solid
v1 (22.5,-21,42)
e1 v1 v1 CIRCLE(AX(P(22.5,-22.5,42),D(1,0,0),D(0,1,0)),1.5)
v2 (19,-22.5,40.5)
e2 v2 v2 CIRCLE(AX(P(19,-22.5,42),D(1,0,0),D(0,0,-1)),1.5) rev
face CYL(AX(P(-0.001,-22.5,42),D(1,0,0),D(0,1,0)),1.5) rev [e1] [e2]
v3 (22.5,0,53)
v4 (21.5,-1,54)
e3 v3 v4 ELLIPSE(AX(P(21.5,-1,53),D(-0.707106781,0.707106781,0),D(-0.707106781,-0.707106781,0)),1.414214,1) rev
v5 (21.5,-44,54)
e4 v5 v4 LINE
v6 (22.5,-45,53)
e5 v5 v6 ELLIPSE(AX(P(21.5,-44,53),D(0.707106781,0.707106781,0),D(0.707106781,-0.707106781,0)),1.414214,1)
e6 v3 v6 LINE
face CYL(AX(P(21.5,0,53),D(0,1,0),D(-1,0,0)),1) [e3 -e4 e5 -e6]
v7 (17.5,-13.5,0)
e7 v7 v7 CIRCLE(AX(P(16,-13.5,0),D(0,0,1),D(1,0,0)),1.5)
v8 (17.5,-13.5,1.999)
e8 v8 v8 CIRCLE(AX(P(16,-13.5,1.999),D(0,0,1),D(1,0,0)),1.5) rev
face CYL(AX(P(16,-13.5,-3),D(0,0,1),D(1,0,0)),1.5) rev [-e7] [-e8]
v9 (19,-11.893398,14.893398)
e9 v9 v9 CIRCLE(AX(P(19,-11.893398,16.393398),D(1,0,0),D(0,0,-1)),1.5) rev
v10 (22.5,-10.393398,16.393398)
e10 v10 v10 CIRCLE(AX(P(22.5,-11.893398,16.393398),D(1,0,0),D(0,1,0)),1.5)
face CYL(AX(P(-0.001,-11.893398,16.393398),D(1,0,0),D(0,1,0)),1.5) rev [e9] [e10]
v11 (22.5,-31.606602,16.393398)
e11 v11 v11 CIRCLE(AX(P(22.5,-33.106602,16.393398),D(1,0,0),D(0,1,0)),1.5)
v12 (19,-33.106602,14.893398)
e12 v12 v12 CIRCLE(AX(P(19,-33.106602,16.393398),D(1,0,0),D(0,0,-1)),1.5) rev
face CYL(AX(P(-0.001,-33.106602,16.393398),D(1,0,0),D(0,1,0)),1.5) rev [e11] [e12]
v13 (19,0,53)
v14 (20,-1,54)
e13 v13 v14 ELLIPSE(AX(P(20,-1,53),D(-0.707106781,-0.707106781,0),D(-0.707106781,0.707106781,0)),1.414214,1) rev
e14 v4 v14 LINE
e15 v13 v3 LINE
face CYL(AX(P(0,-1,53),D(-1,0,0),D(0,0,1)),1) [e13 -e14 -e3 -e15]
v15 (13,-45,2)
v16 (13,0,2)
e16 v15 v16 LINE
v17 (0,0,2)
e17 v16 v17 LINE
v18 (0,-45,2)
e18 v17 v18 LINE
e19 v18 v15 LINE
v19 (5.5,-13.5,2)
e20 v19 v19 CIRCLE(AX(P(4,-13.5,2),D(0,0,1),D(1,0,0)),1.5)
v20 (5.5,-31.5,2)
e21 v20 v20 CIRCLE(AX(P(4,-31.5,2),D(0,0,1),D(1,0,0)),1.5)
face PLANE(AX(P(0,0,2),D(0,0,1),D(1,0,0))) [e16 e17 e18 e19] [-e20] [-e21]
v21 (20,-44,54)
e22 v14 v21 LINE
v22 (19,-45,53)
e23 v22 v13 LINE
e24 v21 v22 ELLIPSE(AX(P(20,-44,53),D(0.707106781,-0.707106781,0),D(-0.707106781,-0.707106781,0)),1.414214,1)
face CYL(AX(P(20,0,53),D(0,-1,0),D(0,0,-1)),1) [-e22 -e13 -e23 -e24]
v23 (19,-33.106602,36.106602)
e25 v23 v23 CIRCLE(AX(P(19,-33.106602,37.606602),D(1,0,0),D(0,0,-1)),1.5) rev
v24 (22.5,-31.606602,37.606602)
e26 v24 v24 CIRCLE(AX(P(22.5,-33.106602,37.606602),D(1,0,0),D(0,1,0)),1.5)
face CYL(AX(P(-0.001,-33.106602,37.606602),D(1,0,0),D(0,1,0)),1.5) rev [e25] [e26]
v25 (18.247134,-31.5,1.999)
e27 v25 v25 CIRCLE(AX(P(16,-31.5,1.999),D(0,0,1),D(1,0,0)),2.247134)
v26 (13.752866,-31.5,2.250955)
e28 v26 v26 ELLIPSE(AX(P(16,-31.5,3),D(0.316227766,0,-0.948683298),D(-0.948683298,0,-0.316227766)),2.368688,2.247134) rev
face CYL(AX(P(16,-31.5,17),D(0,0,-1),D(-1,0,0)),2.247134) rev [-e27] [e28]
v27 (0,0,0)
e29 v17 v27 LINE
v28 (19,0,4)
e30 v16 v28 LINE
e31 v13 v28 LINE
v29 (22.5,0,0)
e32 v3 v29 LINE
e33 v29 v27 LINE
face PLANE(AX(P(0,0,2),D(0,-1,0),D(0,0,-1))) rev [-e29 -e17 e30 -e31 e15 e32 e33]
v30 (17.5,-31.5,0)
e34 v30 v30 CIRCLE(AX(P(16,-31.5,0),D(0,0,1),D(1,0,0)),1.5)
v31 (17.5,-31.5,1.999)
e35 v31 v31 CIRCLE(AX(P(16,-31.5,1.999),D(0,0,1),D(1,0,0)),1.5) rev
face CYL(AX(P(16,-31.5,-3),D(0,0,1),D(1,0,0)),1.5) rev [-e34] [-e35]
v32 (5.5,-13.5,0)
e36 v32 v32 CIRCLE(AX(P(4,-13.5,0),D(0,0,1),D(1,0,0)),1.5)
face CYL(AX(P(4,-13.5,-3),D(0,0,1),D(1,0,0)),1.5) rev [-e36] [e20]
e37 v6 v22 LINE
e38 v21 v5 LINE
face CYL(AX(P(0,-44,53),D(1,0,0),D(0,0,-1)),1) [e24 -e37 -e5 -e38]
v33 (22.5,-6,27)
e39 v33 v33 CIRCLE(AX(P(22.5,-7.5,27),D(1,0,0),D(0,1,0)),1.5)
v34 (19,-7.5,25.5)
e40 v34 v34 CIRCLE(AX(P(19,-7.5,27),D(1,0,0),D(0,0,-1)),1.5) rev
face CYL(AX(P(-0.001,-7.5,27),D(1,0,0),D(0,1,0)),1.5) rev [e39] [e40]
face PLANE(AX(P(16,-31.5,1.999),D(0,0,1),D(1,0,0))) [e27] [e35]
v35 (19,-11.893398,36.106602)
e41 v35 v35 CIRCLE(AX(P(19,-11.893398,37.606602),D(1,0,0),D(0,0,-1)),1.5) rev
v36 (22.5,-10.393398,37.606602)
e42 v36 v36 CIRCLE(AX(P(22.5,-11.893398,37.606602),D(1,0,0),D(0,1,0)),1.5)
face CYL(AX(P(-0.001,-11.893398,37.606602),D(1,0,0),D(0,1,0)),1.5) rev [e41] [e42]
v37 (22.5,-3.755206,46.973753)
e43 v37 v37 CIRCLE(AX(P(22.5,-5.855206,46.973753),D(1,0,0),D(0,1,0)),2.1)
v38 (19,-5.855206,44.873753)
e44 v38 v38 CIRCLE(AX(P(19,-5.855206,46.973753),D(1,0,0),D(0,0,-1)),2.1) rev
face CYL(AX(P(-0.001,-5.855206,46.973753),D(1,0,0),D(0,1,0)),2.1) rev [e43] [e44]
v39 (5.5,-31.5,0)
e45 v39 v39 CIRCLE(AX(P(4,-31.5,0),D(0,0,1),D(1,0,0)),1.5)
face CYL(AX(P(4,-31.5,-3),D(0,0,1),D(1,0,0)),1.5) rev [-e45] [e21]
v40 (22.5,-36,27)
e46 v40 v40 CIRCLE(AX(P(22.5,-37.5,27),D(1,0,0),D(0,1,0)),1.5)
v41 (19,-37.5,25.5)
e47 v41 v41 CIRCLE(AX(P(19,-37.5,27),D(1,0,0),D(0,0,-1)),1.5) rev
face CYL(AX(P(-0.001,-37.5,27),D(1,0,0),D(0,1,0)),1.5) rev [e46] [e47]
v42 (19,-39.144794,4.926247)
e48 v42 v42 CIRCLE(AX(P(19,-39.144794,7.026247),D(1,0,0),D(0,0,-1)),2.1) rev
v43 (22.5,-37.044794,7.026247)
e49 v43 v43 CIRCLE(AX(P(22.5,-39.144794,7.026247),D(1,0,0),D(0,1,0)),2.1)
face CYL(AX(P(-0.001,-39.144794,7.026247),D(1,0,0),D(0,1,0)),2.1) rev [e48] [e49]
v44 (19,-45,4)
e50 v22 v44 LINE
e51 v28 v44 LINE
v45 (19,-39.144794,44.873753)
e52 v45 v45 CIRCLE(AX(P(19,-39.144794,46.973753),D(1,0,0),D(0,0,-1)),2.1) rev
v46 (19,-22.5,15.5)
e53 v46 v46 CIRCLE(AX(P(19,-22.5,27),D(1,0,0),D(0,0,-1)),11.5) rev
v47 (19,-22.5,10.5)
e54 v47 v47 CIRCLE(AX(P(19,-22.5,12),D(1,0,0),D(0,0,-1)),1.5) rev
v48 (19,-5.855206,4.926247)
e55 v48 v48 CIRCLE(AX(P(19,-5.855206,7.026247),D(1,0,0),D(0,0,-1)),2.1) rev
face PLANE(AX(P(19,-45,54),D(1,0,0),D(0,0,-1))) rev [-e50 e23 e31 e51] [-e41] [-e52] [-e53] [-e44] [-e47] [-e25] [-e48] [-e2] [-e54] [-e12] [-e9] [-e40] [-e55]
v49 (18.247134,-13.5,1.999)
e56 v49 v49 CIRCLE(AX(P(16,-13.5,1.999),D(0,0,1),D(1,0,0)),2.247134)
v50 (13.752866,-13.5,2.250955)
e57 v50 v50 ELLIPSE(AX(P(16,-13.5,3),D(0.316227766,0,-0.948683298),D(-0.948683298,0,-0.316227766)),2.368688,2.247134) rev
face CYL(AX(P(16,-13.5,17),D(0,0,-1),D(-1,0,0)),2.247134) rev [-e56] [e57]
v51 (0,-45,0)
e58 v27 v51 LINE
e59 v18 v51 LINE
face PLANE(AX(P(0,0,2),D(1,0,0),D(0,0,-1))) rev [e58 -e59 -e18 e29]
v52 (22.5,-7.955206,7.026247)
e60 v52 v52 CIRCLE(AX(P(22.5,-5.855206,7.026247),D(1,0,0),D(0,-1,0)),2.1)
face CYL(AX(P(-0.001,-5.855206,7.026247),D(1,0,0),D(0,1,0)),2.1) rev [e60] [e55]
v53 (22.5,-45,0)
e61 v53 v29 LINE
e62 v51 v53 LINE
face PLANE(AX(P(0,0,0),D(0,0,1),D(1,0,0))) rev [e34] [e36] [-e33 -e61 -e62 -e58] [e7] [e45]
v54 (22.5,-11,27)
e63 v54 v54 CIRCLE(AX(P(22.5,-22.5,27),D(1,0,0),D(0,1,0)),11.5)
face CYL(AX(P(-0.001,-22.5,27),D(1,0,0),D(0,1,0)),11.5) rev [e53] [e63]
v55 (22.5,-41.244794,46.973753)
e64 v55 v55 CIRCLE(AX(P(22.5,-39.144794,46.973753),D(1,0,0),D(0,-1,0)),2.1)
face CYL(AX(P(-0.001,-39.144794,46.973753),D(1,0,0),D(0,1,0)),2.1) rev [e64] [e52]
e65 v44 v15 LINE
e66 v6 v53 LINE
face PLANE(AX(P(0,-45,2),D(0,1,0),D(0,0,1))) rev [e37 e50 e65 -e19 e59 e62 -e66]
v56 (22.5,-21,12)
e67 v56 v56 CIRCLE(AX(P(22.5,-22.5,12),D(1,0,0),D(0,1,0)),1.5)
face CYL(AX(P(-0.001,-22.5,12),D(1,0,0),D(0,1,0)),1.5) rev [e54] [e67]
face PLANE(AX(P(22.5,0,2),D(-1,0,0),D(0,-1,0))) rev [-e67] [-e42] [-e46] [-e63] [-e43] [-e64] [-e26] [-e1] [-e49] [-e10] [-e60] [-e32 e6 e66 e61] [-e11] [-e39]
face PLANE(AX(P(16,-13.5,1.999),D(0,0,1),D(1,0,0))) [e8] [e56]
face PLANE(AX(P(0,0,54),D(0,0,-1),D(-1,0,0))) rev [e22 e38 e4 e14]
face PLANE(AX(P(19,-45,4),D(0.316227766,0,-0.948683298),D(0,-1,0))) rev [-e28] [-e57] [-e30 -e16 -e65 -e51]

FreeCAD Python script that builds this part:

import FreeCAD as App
import Part
import Sketcher

V = App.Vector


def edges_at(feature, points):
    """Names of the edges that pass closest to the given points."""
    edges = feature.Shape.Edges
    near = lambda p: min(range(len(edges)), key=lambda i: edges[i].distToShape(Part.Vertex(*p))[0])
    return sorted({f"Edge{near(p) + 1}" for p in points})


def add_polygon(sketch, points):
    """Adds a closed chain of lines whose ends are joined by coincident constraints."""
    first, n = sketch.GeometryCount, len(points)
    for a, b in zip(points, points[1:] + points[:1]):
        sketch.addGeometry(Part.LineSegment(App.Vector(*a, 0), App.Vector(*b, 0)), False)
    for i in range(n):
        sketch.addConstraint(Sketcher.Constraint("Coincident", first + i, 2, first + (i + 1) % n, 1))

doc = App.newDocument("Part")
params = doc.addObject("Spreadsheet::Sheet", "Params")
for row, (alias, value) in enumerate([
    ("sketch1_height", "45 mm"),
    ("sketch1_width", "22.5 mm"),
    ("pad1_length", "2 mm"),
    ("sketch2_height", "45 mm"),
    ("sketch2_width", "3.5 mm"),
    ("pad2_length", "52 mm"),
    ("sketch3_diameter", "4.2 mm"),
    ("sketch4_diameter", "4.2 mm"),
    ("sketch5_diameter", "23 mm"),
    ("sketch6_diameter", "4.2 mm"),
    ("sketch7_diameter", "4.2 mm"),
    ("sketch8_diameter", "3 mm"),
    ("sketch9_diameter", "3 mm"),
    ("sketch10_diameter", "3 mm"),
    ("sketch11_diameter", "3 mm"),
    ("sketch12_diameter", "3 mm"),
    ("sketch13_diameter", "3 mm"),
    ("sketch14_diameter", "3 mm"),
    ("sketch15_diameter", "3 mm"),
    ("chamfer_size", "6 mm"),
    ("chamfer_size2", "2 mm"),
    ("fillet_radius", "1 mm"),
    ("sketch16_diameter", "3 mm"),
    ("pocket14_length", "10 mm"),
    ("pocket15_length", "15 mm"),
    ("pocket15_length2", "0.001 mm"),
], start=1):
    params.set(f"A{row}", alias)
    params.set(f"B{row}", "=" + value)
    params.setAlias(f"B{row}", alias)

body = doc.addObject("PartDesign::Body", "Body")

sketch1 = body.newObject("Sketcher::SketchObject", "Sketch")
sketch1.AttachmentSupport = (doc.getObject("XY_Plane"), [""])
sketch1.MapMode = "FlatFace"
add_polygon(sketch1, [(0, 0), (0, -45), (22.5, -45), (22.5, 0)])
sketch1.addConstraint([
    Sketcher.Constraint("Vertical", 0),
    Sketcher.Constraint("Horizontal", 1),
    Sketcher.Constraint("Vertical", 2),
    Sketcher.Constraint("Horizontal", 3),
    Sketcher.Constraint("Coincident", 3, 2, -1, 1),
    Sketcher.Constraint("DistanceY", 0, 2, 0, 1, 45.0),
    Sketcher.Constraint("DistanceX", 1, 1, 1, 2, 22.5),
])
sketch1.setExpression("Constraints[9]", "Params.sketch1_height")
sketch1.setExpression("Constraints[10]", "Params.sketch1_width")
pad1 = body.newObject("PartDesign::Pad", "Pad")
pad1.Profile = sketch1
pad1.setExpression("Length", "Params.pad1_length")

sketch2 = body.newObject("Sketcher::SketchObject", "Sketch001")
sketch2.AttachmentSupport = (doc.getObject("XY_Plane"), [""])
sketch2.MapMode = "FlatFace"
sketch2.AttachmentOffset = App.Placement(V(0, 0, 2), App.Rotation())
add_polygon(sketch2, [(19, 0), (19, -45), (22.5, -45), (22.5, 0)])
sketch2.addConstraint([
    Sketcher.Constraint("Vertical", 0),
    Sketcher.Constraint("Horizontal", 1),
    Sketcher.Constraint("Vertical", 2),
    Sketcher.Constraint("Horizontal", 3),
    Sketcher.Constraint("PointOnObject", 2, 2, -1),
    Sketcher.Constraint("DistanceY", 0, 2, 0, 1, 45.0),
    Sketcher.Constraint("DistanceX", 1, 1, 1, 2, 3.5),
    Sketcher.Constraint("DistanceX", -1, 1, 0, 2, 19.0),
])
sketch2.setExpression("Constraints[9]", "Params.sketch2_height")
sketch2.setExpression("Constraints[10]", "Params.sketch2_width")
pad2 = body.newObject("PartDesign::Pad", "Pad001")
pad2.Profile = sketch2
pad2.setExpression("Length", "Params.pad2_length")

sketch3 = body.newObject("Sketcher::SketchObject", "Sketch002")
sketch3.AttachmentSupport = (doc.getObject("YZ_Plane"), [""])
sketch3.MapMode = "FlatFace"
sketch3.AttachmentOffset = App.Placement(V(0, 0, 22.5), App.Rotation())
sketch3.addGeometry(Part.Circle(V(-5.855206, 46.973753, 0), V(0, 0, 1), 2.1), False)
sketch3.addConstraint([
    Sketcher.Constraint("Diameter", 0, 4.2),
    Sketcher.Constraint("DistanceX", 0, 3, -1, 1, 5.855206),
    Sketcher.Constraint("DistanceY", -1, 1, 0, 3, 46.973753),
])
sketch3.setExpression("Constraints[0]", "Params.sketch3_diameter")
pocket1 = body.newObject("PartDesign::Pocket", "Pocket")
pocket1.Profile = sketch3
pocket1.Type = "UpToFirst"

sketch4 = body.newObject("Sketcher::SketchObject", "Sketch003")
sketch4.AttachmentSupport = (doc.getObject("YZ_Plane"), [""])
sketch4.MapMode = "FlatFace"
sketch4.AttachmentOffset = App.Placement(V(0, 0, 22.5), App.Rotation())
sketch4.addGeometry(Part.Circle(V(-39.144794, 7.026247, 0), V(0, 0, 1), 2.1), False)
sketch4.addConstraint([
    Sketcher.Constraint("Diameter", 0, 4.2),
    Sketcher.Constraint("DistanceX", 0, 3, -1, 1, 39.144794),
    Sketcher.Constraint("DistanceY", -1, 1, 0, 3, 7.026247),
])
sketch4.setExpression("Constraints[0]", "Params.sketch4_diameter")
pocket2 = body.newObject("PartDesign::Pocket", "Pocket001")
pocket2.Profile = sketch4
pocket2.Type = "UpToFirst"

sketch5 = body.newObject("Sketcher::SketchObject", "Sketch004")
sketch5.AttachmentSupport = (doc.getObject("YZ_Plane"), [""])
sketch5.MapMode = "FlatFace"
sketch5.AttachmentOffset = App.Placement(V(0, 0, 22.5), App.Rotation())
sketch5.addGeometry(Part.Circle(V(-22.5, 27, 0), V(0, 0, 1), 11.5), False)
sketch5.addConstraint([
    Sketcher.Constraint("Diameter", 0, 23.0),
    Sketcher.Constraint("DistanceY", -1, 1, 0, 3, 27.0),
    Sketcher.Constraint("DistanceX", 0, 3, -1, 1, 22.5),
])
sketch5.setExpression("Constraints[0]", "Params.sketch5_diameter")
pocket3 = body.newObject("PartDesign::Pocket", "Pocket002")
pocket3.Profile = sketch5
pocket3.Type = "UpToFirst"

sketch6 = body.newObject("Sketcher::SketchObject", "Sketch005")
sketch6.AttachmentSupport = (doc.getObject("YZ_Plane"), [""])
sketch6.MapMode = "FlatFace"
sketch6.AttachmentOffset = App.Placement(V(0, 0, 22.5), App.Rotation())
sketch6.addGeometry(Part.Circle(V(-39.144794, 46.973753, 0), V(0, 0, 1), 2.1), False)
sketch6.addConstraint([
    Sketcher.Constraint("Diameter", 0, 4.2),
    Sketcher.Constraint("DistanceX", 0, 3, -1, 1, 39.144794),
    Sketcher.Constraint("DistanceY", -1, 1, 0, 3, 46.973753),
])
sketch6.setExpression("Constraints[0]", "Params.sketch6_diameter")
pocket4 = body.newObject("PartDesign::Pocket", "Pocket003")
pocket4.Profile = sketch6
pocket4.Type = "UpToFirst"

sketch7 = body.newObject("Sketcher::SketchObject", "Sketch006")
sketch7.AttachmentSupport = (doc.getObject("YZ_Plane"), [""])
sketch7.MapMode = "FlatFace"
sketch7.AttachmentOffset = App.Placement(V(0, 0, 22.5), App.Rotation())
sketch7.addGeometry(Part.Circle(V(-5.855206, 7.026247, 0), V(0, 0, 1), 2.1), False)
sketch7.addConstraint([
    Sketcher.Constraint("Diameter", 0, 4.2),
    Sketcher.Constraint("DistanceX", 0, 3, -1, 1, 5.855206),
    Sketcher.Constraint("DistanceY", -1, 1, 0, 3, 7.026247),
])
sketch7.setExpression("Constraints[0]", "Params.sketch7_diameter")
pocket5 = body.newObject("PartDesign::Pocket", "Pocket004")
pocket5.Profile = sketch7
pocket5.Type = "UpToFirst"

sketch8 = body.newObject("Sketcher::SketchObject", "Sketch007")
sketch8.AttachmentSupport = (doc.getObject("YZ_Plane"), [""])
sketch8.MapMode = "FlatFace"
sketch8.AttachmentOffset = App.Placement(V(0, 0, 22.5), App.Rotation())
sketch8.addGeometry(Part.Circle(V(-22.5, 42, 0), V(0, 0, 1), 1.5), False)
sketch8.addConstraint([
    Sketcher.Constraint("Diameter", 0, 3.0),
    Sketcher.Constraint("DistanceY", -1, 1, 0, 3, 42.0),
    Sketcher.Constraint("DistanceX", 0, 3, -1, 1, 22.5),
])
sketch8.setExpression("Constraints[0]", "Params.sketch8_diameter")
pocket6 = body.newObject("PartDesign::Pocket", "Pocket005")
pocket6.Profile = sketch8
pocket6.Type = "UpToFirst"

sketch9 = body.newObject("Sketcher::SketchObject", "Sketch008")
sketch9.AttachmentSupport = (doc.getObject("YZ_Plane"), [""])
sketch9.MapMode = "FlatFace"
sketch9.AttachmentOffset = App.Placement(V(0, 0, 22.5), App.Rotation())
sketch9.addGeometry(Part.Circle(V(-11.893398, 37.606602, 0), V(0, 0, 1), 1.5), False)
sketch9.addConstraint([
    Sketcher.Constraint("Diameter", 0, 3.0),
    Sketcher.Constraint("DistanceX", 0, 3, -1, 1, 11.893398),
    Sketcher.Constraint("DistanceY", -1, 1, 0, 3, 37.606602),
])
sketch9.setExpression("Constraints[0]", "Params.sketch9_diameter")
pocket7 = body.newObject("PartDesign::Pocket", "Pocket006")
pocket7.Profile = sketch9
pocket7.Type = "UpToFirst"

sketch10 = body.newObject("Sketcher::SketchObject", "Sketch009")
sketch10.AttachmentSupport = (doc.getObject("YZ_Plane"), [""])
sketch10.MapMode = "FlatFace"
sketch10.AttachmentOffset = App.Placement(V(0, 0, 22.5), App.Rotation())
sketch10.addGeometry(Part.Circle(V(-7.5, 27, 0), V(0, 0, 1), 1.5), False)
sketch10.addConstraint([
    Sketcher.Constraint("Diameter", 0, 3.0),
    Sketcher.Constraint("DistanceY", -1, 1, 0, 3, 27.0),
    Sketcher.Constraint("DistanceX", 0, 3, -1, 1, 7.5),
])
sketch10.setExpression("Constraints[0]", "Params.sketch10_diameter")
pocket8 = body.newObject("PartDesign::Pocket", "Pocket007")
pocket8.Profile = sketch10
pocket8.Type = "UpToFirst"

sketch11 = body.newObject("Sketcher::SketchObject", "Sketch010")
sketch11.AttachmentSupport = (doc.getObject("YZ_Plane"), [""])
sketch11.MapMode = "FlatFace"
sketch11.AttachmentOffset = App.Placement(V(0, 0, 22.5), App.Rotation())
sketch11.addGeometry(Part.Circle(V(-11.893398, 16.393398, 0), V(0, 0, 1), 1.5), False)
sketch11.addConstraint([
    Sketcher.Constraint("Diameter", 0, 3.0),
    Sketcher.Constraint("DistanceX", 0, 3, -1, 1, 11.893398),
    Sketcher.Constraint("DistanceY", -1, 1, 0, 3, 16.393398),
])
sketch11.setExpression("Constraints[0]", "Params.sketch11_diameter")
pocket9 = body.newObject("PartDesign::Pocket", "Pocket008")
pocket9.Profile = sketch11
pocket9.Type = "UpToFirst"

sketch12 = body.newObject("Sketcher::SketchObject", "Sketch011")
sketch12.AttachmentSupport = (doc.getObject("YZ_Plane"), [""])
sketch12.MapMode = "FlatFace"
sketch12.AttachmentOffset = App.Placement(V(0, 0, 22.5), App.Rotation())
sketch12.addGeometry(Part.Circle(V(-22.5, 12, 0), V(0, 0, 1), 1.5), False)
sketch12.addConstraint([
    Sketcher.Constraint("Diameter", 0, 3.0),
    Sketcher.Constraint("DistanceY", -1, 1, 0, 3, 12.0),
    Sketcher.Constraint("DistanceX", 0, 3, -1, 1, 22.5),
])
sketch12.setExpression("Constraints[0]", "Params.sketch12_diameter")
pocket10 = body.newObject("PartDesign::Pocket", "Pocket009")
pocket10.Profile = sketch12
pocket10.Type = "UpToFirst"

sketch13 = body.newObject("Sketcher::SketchObject", "Sketch012")
sketch13.AttachmentSupport = (doc.getObject("YZ_Plane"), [""])
sketch13.MapMode = "FlatFace"
sketch13.AttachmentOffset = App.Placement(V(0, 0, 22.5), App.Rotation())
sketch13.addGeometry(Part.Circle(V(-33.106602, 16.393398, 0), V(0, 0, 1), 1.5), False)
sketch13.addConstraint([
    Sketcher.Constraint("Diameter", 0, 3.0),
    Sketcher.Constraint("DistanceX", 0, 3, -1, 1, 33.106602),
    Sketcher.Constraint("DistanceY", -1, 1, 0, 3, 16.393398),
])
sketch13.setExpression("Constraints[0]", "Params.sketch13_diameter")
pocket11 = body.newObject("PartDesign::Pocket", "Pocket010")
pocket11.Profile = sketch13
pocket11.Type = "UpToFirst"

sketch14 = body.newObject("Sketcher::SketchObject", "Sketch013")
sketch14.AttachmentSupport = (doc.getObject("YZ_Plane"), [""])
sketch14.MapMode = "FlatFace"
sketch14.AttachmentOffset = App.Placement(V(0, 0, 22.5), App.Rotation())
sketch14.addGeometry(Part.Circle(V(-37.5, 27, 0), V(0, 0, 1), 1.5), False)
sketch14.addConstraint([
    Sketcher.Constraint("Diameter", 0, 3.0),
    Sketcher.Constraint("DistanceY", -1, 1, 0, 3, 27.0),
    Sketcher.Constraint("DistanceX", 0, 3, -1, 1, 37.5),
])
sketch14.setExpression("Constraints[0]", "Params.sketch14_diameter")
pocket12 = body.newObject("PartDesign::Pocket", "Pocket011")
pocket12.Profile = sketch14
pocket12.Type = "UpToFirst"

sketch15 = body.newObject("Sketcher::SketchObject", "Sketch014")
sketch15.AttachmentSupport = (doc.getObject("YZ_Plane"), [""])
sketch15.MapMode = "FlatFace"
sketch15.AttachmentOffset = App.Placement(V(0, 0, 22.5), App.Rotation())
sketch15.addGeometry(Part.Circle(V(-33.106602, 37.606602, 0), V(0, 0, 1), 1.5), False)
sketch15.addConstraint([
    Sketcher.Constraint("Diameter", 0, 3.0),
    Sketcher.Constraint("DistanceX", 0, 3, -1, 1, 33.106602),
    Sketcher.Constraint("DistanceY", -1, 1, 0, 3, 37.606602),
])
sketch15.setExpression("Constraints[0]", "Params.sketch15_diameter")
pocket13 = body.newObject("PartDesign::Pocket", "Pocket012")
pocket13.Profile = sketch15
pocket13.Type = "UpToFirst"
doc.recompute()

chamfer = body.newObject("PartDesign::Chamfer", "Chamfer")
chamfer.Base = (pocket13, edges_at(pocket13, [(19, -22.5, 2)]))
chamfer.ChamferType = "Two distances"
chamfer.setExpression("Size", "Params.chamfer_size")
chamfer.setExpression("Size2", "Params.chamfer_size2")
doc.recompute()

fillet = body.newObject("PartDesign::Fillet", "Fillet")
fillet.Base = (chamfer, edges_at(chamfer, [
    (20.75, 0, 54),
    (19, -22.5, 54),
    (20.75, -45, 54),
    (22.5, -22.5, 54),
]))
fillet.setExpression("Radius", "Params.fillet_radius")

sketch16 = body.newObject("Sketcher::SketchObject", "Sketch015")
sketch16.AttachmentSupport = (doc.getObject("XY_Plane"), [""])
sketch16.MapMode = "FlatFace"
sketch16.AttachmentOffset = App.Placement(V(0, 0, 2), App.Rotation())
sketch16.addGeometry([
    Part.Circle(V(4, -31.5, 0), V(0, 0, 1), 1.5),
    Part.Circle(V(4, -13.5, 0), V(0, 0, 1), 1.5),
    Part.Circle(V(16, -13.5, 0), V(0, 0, 1), 1.5),
    Part.Circle(V(16, -31.5, 0), V(0, 0, 1), 1.5),
], False)
sketch16.addConstraint([
    Sketcher.Constraint("Equal", 0, 1),
    Sketcher.Constraint("Equal", 1, 2),
    Sketcher.Constraint("Equal", 2, 3),
    Sketcher.Constraint("Horizontal", 1, 3, 2, 3),
    Sketcher.Constraint("Horizontal", 0, 3, 3, 3),
    Sketcher.Constraint("Vertical", 0, 3, 1, 3),
    Sketcher.Constraint("Vertical", 2, 3, 3, 3),
    Sketcher.Constraint("Diameter", 0, 3.0),
    Sketcher.Constraint("DistanceX", -1, 1, 0, 3, 4.0),
    Sketcher.Constraint("DistanceX", -1, 1, 2, 3, 16.0),
    Sketcher.Constraint("DistanceY", 0, 3, 1, 3, 18.0),
    Sketcher.Constraint("DistanceY", 0, 3, -1, 1, 31.5),
])
sketch16.setExpression("Constraints[7]", "Params.sketch16_diameter")
pocket14 = body.newObject("PartDesign::Pocket", "Pocket013")
pocket14.Profile = sketch16
pocket14.setExpression("Length", "Params.pocket14_length")
pocket14.Midplane = True

sketch17 = body.newObject("Sketcher::SketchObject", "Sketch016")
sketch17.AttachmentSupport = (doc.getObject("XY_Plane"), [""])
sketch17.MapMode = "FlatFace"
sketch17.AttachmentOffset = App.Placement(V(0, 0, 2), App.Rotation())
sketch17.addGeometry([
    Part.Circle(V(16, -13.5, 0), V(0, 0, 1), 2.247134),
    Part.Circle(V(16, -31.5, 0), V(0, 0, 1), 2.247134),
], False)
sketch17.addConstraint([
    Sketcher.Constraint("Equal", 0, 1),
    Sketcher.Constraint("Vertical", 0, 3, 1, 3),
    Sketcher.Constraint("DistanceX", -1, 1, 0, 3, 16.0),
    Sketcher.Constraint("DistanceY", 1, 3, 0, 3, 18.0),
    Sketcher.Constraint("DistanceY", 0, 3, -1, 1, 13.5),
    Sketcher.Constraint("Diameter", 0, 4.494269),
])
pocket15 = body.newObject("PartDesign::Pocket", "Pocket014")
pocket15.Profile = sketch17
pocket15.Type = "TwoLengths"
pocket15.setExpression("Length", "Params.pocket15_length")
pocket15.setExpression("Length2", "Params.pocket15_length2")
pocket15.Reversed = True

doc.recompute()
